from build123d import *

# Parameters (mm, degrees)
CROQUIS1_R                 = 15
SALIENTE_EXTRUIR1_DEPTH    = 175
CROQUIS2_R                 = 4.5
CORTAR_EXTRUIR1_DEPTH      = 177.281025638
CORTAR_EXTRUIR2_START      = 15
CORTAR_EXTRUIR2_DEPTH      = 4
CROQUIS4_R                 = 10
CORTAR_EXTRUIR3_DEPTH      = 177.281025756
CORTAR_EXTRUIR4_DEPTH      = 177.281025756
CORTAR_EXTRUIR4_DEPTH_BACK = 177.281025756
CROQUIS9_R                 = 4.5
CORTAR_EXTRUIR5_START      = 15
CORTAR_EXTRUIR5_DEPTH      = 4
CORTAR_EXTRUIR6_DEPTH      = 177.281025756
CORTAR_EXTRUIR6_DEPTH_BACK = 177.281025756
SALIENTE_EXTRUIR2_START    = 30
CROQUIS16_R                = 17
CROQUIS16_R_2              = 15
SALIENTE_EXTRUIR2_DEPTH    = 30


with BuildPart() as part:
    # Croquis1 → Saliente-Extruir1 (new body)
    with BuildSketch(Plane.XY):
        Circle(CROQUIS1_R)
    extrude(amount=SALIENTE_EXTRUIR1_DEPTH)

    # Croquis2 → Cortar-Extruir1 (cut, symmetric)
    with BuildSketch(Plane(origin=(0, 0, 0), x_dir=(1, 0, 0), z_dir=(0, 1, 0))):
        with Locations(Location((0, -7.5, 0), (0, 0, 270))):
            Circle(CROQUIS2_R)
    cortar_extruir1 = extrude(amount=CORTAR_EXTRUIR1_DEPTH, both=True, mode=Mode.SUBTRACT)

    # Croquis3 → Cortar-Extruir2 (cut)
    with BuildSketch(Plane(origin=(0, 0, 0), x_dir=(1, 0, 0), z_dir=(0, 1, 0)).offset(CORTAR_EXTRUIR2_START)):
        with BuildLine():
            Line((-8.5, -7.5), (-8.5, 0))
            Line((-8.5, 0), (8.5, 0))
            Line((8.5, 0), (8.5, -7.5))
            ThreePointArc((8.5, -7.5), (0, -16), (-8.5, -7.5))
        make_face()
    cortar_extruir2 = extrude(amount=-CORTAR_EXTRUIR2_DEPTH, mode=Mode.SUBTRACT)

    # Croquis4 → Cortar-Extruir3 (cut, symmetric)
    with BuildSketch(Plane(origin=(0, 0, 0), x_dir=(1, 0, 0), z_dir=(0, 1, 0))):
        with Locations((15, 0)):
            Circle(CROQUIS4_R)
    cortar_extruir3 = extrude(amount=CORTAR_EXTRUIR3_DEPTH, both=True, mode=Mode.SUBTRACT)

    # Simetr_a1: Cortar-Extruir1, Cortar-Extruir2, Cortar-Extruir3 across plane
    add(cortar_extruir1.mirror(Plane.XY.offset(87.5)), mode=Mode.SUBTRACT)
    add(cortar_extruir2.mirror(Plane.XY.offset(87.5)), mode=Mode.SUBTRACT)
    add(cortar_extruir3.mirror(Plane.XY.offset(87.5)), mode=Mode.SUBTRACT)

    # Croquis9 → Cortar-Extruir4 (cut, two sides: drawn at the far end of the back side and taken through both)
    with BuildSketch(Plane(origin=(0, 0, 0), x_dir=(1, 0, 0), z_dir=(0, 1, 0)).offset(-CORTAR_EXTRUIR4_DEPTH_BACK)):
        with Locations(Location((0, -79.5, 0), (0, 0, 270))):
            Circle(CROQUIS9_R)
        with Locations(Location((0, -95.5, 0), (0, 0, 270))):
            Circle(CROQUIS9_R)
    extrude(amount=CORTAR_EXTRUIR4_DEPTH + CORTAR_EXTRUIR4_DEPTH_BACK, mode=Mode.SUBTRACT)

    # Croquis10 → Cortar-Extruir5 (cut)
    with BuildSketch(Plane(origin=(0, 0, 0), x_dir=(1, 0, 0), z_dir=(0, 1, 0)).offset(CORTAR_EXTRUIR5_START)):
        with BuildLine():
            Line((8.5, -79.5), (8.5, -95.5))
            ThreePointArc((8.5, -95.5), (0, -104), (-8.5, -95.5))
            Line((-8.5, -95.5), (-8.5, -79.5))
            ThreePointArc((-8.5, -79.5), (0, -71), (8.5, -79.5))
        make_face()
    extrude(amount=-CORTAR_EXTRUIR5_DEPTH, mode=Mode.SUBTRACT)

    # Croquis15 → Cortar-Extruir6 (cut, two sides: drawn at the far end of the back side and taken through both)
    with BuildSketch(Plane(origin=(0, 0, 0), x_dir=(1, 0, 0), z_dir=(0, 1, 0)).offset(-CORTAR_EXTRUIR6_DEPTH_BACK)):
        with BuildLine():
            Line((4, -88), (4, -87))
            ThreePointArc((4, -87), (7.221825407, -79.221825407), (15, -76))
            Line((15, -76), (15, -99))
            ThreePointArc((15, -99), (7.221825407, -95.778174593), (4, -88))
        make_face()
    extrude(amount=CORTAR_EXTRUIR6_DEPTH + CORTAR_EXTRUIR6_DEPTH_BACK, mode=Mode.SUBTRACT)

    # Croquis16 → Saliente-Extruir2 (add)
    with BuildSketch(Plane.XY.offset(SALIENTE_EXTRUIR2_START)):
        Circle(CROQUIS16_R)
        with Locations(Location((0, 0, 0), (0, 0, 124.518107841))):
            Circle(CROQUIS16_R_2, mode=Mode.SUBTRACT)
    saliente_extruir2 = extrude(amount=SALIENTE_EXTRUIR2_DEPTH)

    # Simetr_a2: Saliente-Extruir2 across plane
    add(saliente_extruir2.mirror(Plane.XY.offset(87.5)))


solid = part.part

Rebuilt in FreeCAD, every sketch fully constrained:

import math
import FreeCAD as App
import Part
import Sketcher

V = App.Vector

doc = App.newDocument("Part")
params = doc.addObject("Spreadsheet::Sheet", "Params")
for row, (alias, value) in enumerate([
    ("sketch1_diameter", "30 mm"),
    ("pad1_length", "175 mm"),
    ("sketch2_diameter", "9 mm"),
    ("pocket1_length", "354.562051 mm"),
    ("sketch3_radius", "8.5 mm"),
    ("sketch3_height", "7.5 mm"),
    ("pocket2_length", "4 mm"),
    ("sketch4_diameter", "20 mm"),
    ("pocket3_length", "354.562052 mm"),
    ("sketch5_diameter", "9 mm"),
    ("sketch6_radius", "8.5 mm"),
    ("sketch6_height", "16 mm"),
    ("pocket5_length", "4 mm"),
    ("sketch7_radius", "11 mm"),
    ("sketch7_height", "1 mm"),
    ("sketch8_diameter", "34 mm"),
    ("sketch8_diameter2", "30 mm"),
    ("pad2_length", "30 mm"),
], start=1):
    params.set(f"A{row}", alias)
    params.set(f"B{row}", "=" + value)
    params.setAlias(f"B{row}", alias)

body = doc.addObject("PartDesign::Body", "Body")

sketch1 = body.newObject("Sketcher::SketchObject", "Sketch")
sketch1.AttachmentSupport = (doc.getObject("XY_Plane"), [""])
sketch1.MapMode = "FlatFace"
sketch1.addGeometry(Part.Circle(V(0, 0, 0), V(0, 0, 1), 15), False)
sketch1.addConstraint([
    Sketcher.Constraint("Coincident", 0, 3, -1, 1),
    Sketcher.Constraint("Diameter", 0, 30.0),
])
sketch1.setExpression("Constraints[1]", "Params.sketch1_diameter")
pad1 = body.newObject("PartDesign::Pad", "Pad")
pad1.Profile = sketch1
pad1.setExpression("Length", "Params.pad1_length")

sketch2 = body.newObject("Sketcher::SketchObject", "Sketch001")
sketch2.AttachmentSupport = (doc.getObject("XZ_Plane"), [""])
sketch2.MapMode = "FlatFace"
sketch2.addGeometry(Part.Circle(V(0, 7.5, 0), V(0, 0, 1), 4.5), False)
sketch2.addConstraint([
    Sketcher.Constraint("PointOnObject", 0, 3, -2),
    Sketcher.Constraint("Diameter", 0, 9.0),
    Sketcher.Constraint("DistanceY", -1, 1, 0, 3, 7.5),
])
sketch2.setExpression("Constraints[1]", "Params.sketch2_diameter")
pocket1 = body.newObject("PartDesign::Pocket", "Pocket")
pocket1.Profile = sketch2
pocket1.setExpression("Length", "Params.pocket1_length")
pocket1.Midplane = True

sketch3 = body.newObject("Sketcher::SketchObject", "Sketch002")
sketch3.AttachmentSupport = (doc.getObject("XZ_Plane"), [""])
sketch3.MapMode = "FlatFace"
sketch3.AttachmentOffset = App.Placement(V(0, 0, -15), App.Rotation())
sketch3.addGeometry([
    Part.LineSegment(V(-8, 0, 0), V(-8, 8, 0)),
    Part.ArcOfCircle(Part.Circle(V(0, 8, 0), V(0, 0, 1), 8), math.radians(0), math.radians(180)),
    Part.LineSegment(V(8, 8, 0), V(8, 0, 0)),
    Part.LineSegment(V(8, 0, 0), V(-8, 0, 0)),
], False)
sketch3.addConstraint([
    Sketcher.Constraint("Tangent", 0, 2, 1, 2),
    Sketcher.Constraint("Tangent", 1, 1, 2, 1),
    Sketcher.Constraint("Coincident", 2, 2, 3, 1),
    Sketcher.Constraint("Coincident", 3, 2, 0, 1),
    Sketcher.Constraint("Vertical", 0),
    Sketcher.Constraint("Vertical", 2),
    Sketcher.Constraint("Horizontal", 3),
    Sketcher.Constraint("Symmetric", 2, 2, 3, 2, -1, 1),
    Sketcher.Constraint("Radius", 1, 8.5),
    Sketcher.Constraint("DistanceY", 0, 1, 0, 2, 7.5),
])
sketch3.setExpression("Constraints[8]", "Params.sketch3_radius")
sketch3.setExpression("Constraints[9]", "Params.sketch3_height")
pocket2 = body.newObject("PartDesign::Pocket", "Pocket001")
pocket2.Profile = sketch3
pocket2.setExpression("Length", "Params.pocket2_length")
pocket2.Reversed = True

sketch4 = body.newObject("Sketcher::SketchObject", "Sketch003")
sketch4.AttachmentSupport = (doc.getObject("XZ_Plane"), [""])
sketch4.MapMode = "FlatFace"
sketch4.addGeometry(Part.Circle(V(15, 0, 0), V(0, 0, 1), 10), False)
sketch4.addConstraint([
    Sketcher.Constraint("PointOnObject", 0, 3, -1),
    Sketcher.Constraint("Diameter", 0, 20.0),
    Sketcher.Constraint("DistanceX", -1, 1, 0, 3, 15.0),
])
sketch4.setExpression("Constraints[1]", "Params.sketch4_diameter")
pocket3 = body.newObject("PartDesign::Pocket", "Pocket002")
pocket3.Profile = sketch4
pocket3.setExpression("Length", "Params.pocket3_length")
pocket3.Midplane = True
doc.recompute()

datumplane = body.newObject("PartDesign::Plane", "DatumPlane")
datumplane.AttachmentSupport = (doc.getObject("XY_Plane"), [""])
datumplane.MapMode = "FlatFace"
datumplane.AttachmentOffset = App.Placement(V(0, 0, 87.5), App.Rotation())
mirrored = body.newObject("PartDesign::Mirrored", "Mirrored")
mirrored.Originals = [pocket1, pocket2, pocket3]
mirrored.MirrorPlane = (datumplane, [""])
body.Tip = mirrored

sketch5 = body.newObject("Sketcher::SketchObject", "Sketch004")
sketch5.AttachmentSupport = (doc.getObject("XZ_Plane"), [""])
sketch5.MapMode = "FlatFace"
sketch5.addGeometry([
    Part.Circle(V(0, 79.5, 0), V(0, 0, 1), 4.5),
    Part.Circle(V(0, 95.5, 0), V(0, 0, 1), 4.5),
], False)
sketch5.addConstraint([
    Sketcher.Constraint("Equal", 0, 1),
    Sketcher.Constraint("PointOnObject", 0, 3, -2),
    Sketcher.Constraint("PointOnObject", 1, 3, -2),
    Sketcher.Constraint("Diameter", 0, 9.0),
    Sketcher.Constraint("DistanceY", 0, 3, 1, 3, 16.0),
    Sketcher.Constraint("DistanceY", -1, 1, 0, 3, 79.5),
])
sketch5.setExpression("Constraints[3]", "Params.sketch5_diameter")
pocket4 = body.newObject("PartDesign::Pocket", "Pocket003")
pocket4.Profile = sketch5
pocket4.Type = "ThroughAll"
pocket4.Midplane = True

sketch6 = body.newObject("Sketcher::SketchObject", "Sketch005")
sketch6.AttachmentSupport = (doc.getObject("XZ_Plane"), [""])
sketch6.MapMode = "FlatFace"
sketch6.AttachmentOffset = App.Placement(V(0, 0, -15), App.Rotation())
sketch6.addGeometry([
    Part.LineSegment(V(8, 96, 0), V(8, 80, 0)),
    Part.ArcOfCircle(Part.Circle(V(0, 80, 0), V(0, 0, 1), 8), math.radians(180), math.radians(360)),
    Part.LineSegment(V(-8, 80, 0), V(-8, 96, 0)),
    Part.ArcOfCircle(Part.Circle(V(0, 96, 0), V(0, 0, 1), 8), math.radians(0), math.radians(180)),
], False)
sketch6.addConstraint([
    Sketcher.Constraint("Tangent", 0, 2, 1, 2),
    Sketcher.Constraint("Tangent", 1, 1, 2, 1),
    Sketcher.Constraint("Tangent", 2, 2, 3, 2),
    Sketcher.Constraint("Tangent", 3, 1, 0, 1),
    Sketcher.Constraint("Vertical", 0),
    Sketcher.Constraint("Vertical", 2),
    Sketcher.Constraint("PointOnObject", 1, 3, -2),
    Sketcher.Constraint("Radius", 1, 8.5),
    Sketcher.Constraint("DistanceY", 0, 2, 0, 1, 16.0),
    Sketcher.Constraint("DistanceY", -1, 1, 1, 3, 79.5),
])
sketch6.setExpression("Constraints[7]", "Params.sketch6_radius")
sketch6.setExpression("Constraints[8]", "Params.sketch6_height")
pocket5 = body.newObject("PartDesign::Pocket", "Pocket004")
pocket5.Profile = sketch6
pocket5.setExpression("Length", "Params.pocket5_length")
pocket5.Reversed = True

sketch7 = body.newObject("Sketcher::SketchObject", "Sketch006")
sketch7.AttachmentSupport = (doc.getObject("XZ_Plane"), [""])
sketch7.MapMode = "FlatFace"
sketch7.addGeometry([
    Part.LineSegment(V(4, 87, 0), V(4, 88, 0)),
    Part.ArcOfCircle(Part.Circle(V(15, 88, 0), V(0, 0, 1), 11), math.radians(90), math.radians(180)),
    Part.LineSegment(V(15, 99, 0), V(15, 76, 0)),
    Part.ArcOfCircle(Part.Circle(V(15, 87, 0), V(0, 0, 1), 11), math.radians(180), math.radians(270)),
], False)
sketch7.addConstraint([
    Sketcher.Constraint("Tangent", 0, 2, 1, 2),
    Sketcher.Constraint("Coincident", 1, 1, 2, 1),
    Sketcher.Constraint("Coincident", 2, 2, 3, 2),
    Sketcher.Constraint("Tangent", 3, 1, 0, 1),
    Sketcher.Constraint("Vertical", 0),
    Sketcher.Constraint("Vertical", 2),
    Sketcher.Constraint("Equal", 1, 3),
    Sketcher.Constraint("Vertical", 3, 3, 1, 1),
    Sketcher.Constraint("Radius", 1, 11.0),
    Sketcher.Constraint("DistanceY", 0, 1, 0, 2, 1.0),
    Sketcher.Constraint("DistanceX", -1, 1, 1, 3, 15.0),
    Sketcher.Constraint("DistanceY", -1, 1, 1, 3, 88.0),
])
sketch7.setExpression("Constraints[8]", "Params.sketch7_radius")
sketch7.setExpression("Constraints[9]", "Params.sketch7_height")
pocket6 = body.newObject("PartDesign::Pocket", "Pocket005")
pocket6.Profile = sketch7
pocket6.Type = "ThroughAll"
pocket6.Midplane = True

sketch8 = body.newObject("Sketcher::SketchObject", "Sketch007")
sketch8.AttachmentSupport = (doc.getObject("XY_Plane"), [""])
sketch8.MapMode = "FlatFace"
sketch8.AttachmentOffset = App.Placement(V(0, 0, 30), App.Rotation())
sketch8.addGeometry([
    Part.Circle(V(0, 0, 0), V(0, 0, 1), 17),
    Part.Circle(V(0, 0, 0), V(0, 0, 1), 15),
], False)
sketch8.addConstraint([
    Sketcher.Constraint("Coincident", 0, 3, -1, 1),
    Sketcher.Constraint("Coincident", 1, 3, -1, 1),
    Sketcher.Constraint("Diameter", 0, 34.0),
    Sketcher.Constraint("Diameter", 1, 30.0),
])
sketch8.setExpression("Constraints[2]", "Params.sketch8_diameter")
sketch8.setExpression("Constraints[3]", "Params.sketch8_diameter2")
pad2 = body.newObject("PartDesign::Pad", "Pad001")
pad2.Profile = sketch8
pad2.setExpression("Length", "Params.pad2_length")
doc.recompute()

datumplane2 = body.newObject("PartDesign::Plane", "DatumPlane001")
datumplane2.AttachmentSupport = (doc.getObject("XY_Plane"), [""])
datumplane2.MapMode = "FlatFace"
datumplane2.AttachmentOffset = App.Placement(V(0, 0, 87.5), App.Rotation())
mirrored2 = body.newObject("PartDesign::Mirrored", "Mirrored001")
mirrored2.Originals = [pad2]
mirrored2.MirrorPlane = (datumplane2, [""])
body.Tip = mirrored2

doc.recompute()
